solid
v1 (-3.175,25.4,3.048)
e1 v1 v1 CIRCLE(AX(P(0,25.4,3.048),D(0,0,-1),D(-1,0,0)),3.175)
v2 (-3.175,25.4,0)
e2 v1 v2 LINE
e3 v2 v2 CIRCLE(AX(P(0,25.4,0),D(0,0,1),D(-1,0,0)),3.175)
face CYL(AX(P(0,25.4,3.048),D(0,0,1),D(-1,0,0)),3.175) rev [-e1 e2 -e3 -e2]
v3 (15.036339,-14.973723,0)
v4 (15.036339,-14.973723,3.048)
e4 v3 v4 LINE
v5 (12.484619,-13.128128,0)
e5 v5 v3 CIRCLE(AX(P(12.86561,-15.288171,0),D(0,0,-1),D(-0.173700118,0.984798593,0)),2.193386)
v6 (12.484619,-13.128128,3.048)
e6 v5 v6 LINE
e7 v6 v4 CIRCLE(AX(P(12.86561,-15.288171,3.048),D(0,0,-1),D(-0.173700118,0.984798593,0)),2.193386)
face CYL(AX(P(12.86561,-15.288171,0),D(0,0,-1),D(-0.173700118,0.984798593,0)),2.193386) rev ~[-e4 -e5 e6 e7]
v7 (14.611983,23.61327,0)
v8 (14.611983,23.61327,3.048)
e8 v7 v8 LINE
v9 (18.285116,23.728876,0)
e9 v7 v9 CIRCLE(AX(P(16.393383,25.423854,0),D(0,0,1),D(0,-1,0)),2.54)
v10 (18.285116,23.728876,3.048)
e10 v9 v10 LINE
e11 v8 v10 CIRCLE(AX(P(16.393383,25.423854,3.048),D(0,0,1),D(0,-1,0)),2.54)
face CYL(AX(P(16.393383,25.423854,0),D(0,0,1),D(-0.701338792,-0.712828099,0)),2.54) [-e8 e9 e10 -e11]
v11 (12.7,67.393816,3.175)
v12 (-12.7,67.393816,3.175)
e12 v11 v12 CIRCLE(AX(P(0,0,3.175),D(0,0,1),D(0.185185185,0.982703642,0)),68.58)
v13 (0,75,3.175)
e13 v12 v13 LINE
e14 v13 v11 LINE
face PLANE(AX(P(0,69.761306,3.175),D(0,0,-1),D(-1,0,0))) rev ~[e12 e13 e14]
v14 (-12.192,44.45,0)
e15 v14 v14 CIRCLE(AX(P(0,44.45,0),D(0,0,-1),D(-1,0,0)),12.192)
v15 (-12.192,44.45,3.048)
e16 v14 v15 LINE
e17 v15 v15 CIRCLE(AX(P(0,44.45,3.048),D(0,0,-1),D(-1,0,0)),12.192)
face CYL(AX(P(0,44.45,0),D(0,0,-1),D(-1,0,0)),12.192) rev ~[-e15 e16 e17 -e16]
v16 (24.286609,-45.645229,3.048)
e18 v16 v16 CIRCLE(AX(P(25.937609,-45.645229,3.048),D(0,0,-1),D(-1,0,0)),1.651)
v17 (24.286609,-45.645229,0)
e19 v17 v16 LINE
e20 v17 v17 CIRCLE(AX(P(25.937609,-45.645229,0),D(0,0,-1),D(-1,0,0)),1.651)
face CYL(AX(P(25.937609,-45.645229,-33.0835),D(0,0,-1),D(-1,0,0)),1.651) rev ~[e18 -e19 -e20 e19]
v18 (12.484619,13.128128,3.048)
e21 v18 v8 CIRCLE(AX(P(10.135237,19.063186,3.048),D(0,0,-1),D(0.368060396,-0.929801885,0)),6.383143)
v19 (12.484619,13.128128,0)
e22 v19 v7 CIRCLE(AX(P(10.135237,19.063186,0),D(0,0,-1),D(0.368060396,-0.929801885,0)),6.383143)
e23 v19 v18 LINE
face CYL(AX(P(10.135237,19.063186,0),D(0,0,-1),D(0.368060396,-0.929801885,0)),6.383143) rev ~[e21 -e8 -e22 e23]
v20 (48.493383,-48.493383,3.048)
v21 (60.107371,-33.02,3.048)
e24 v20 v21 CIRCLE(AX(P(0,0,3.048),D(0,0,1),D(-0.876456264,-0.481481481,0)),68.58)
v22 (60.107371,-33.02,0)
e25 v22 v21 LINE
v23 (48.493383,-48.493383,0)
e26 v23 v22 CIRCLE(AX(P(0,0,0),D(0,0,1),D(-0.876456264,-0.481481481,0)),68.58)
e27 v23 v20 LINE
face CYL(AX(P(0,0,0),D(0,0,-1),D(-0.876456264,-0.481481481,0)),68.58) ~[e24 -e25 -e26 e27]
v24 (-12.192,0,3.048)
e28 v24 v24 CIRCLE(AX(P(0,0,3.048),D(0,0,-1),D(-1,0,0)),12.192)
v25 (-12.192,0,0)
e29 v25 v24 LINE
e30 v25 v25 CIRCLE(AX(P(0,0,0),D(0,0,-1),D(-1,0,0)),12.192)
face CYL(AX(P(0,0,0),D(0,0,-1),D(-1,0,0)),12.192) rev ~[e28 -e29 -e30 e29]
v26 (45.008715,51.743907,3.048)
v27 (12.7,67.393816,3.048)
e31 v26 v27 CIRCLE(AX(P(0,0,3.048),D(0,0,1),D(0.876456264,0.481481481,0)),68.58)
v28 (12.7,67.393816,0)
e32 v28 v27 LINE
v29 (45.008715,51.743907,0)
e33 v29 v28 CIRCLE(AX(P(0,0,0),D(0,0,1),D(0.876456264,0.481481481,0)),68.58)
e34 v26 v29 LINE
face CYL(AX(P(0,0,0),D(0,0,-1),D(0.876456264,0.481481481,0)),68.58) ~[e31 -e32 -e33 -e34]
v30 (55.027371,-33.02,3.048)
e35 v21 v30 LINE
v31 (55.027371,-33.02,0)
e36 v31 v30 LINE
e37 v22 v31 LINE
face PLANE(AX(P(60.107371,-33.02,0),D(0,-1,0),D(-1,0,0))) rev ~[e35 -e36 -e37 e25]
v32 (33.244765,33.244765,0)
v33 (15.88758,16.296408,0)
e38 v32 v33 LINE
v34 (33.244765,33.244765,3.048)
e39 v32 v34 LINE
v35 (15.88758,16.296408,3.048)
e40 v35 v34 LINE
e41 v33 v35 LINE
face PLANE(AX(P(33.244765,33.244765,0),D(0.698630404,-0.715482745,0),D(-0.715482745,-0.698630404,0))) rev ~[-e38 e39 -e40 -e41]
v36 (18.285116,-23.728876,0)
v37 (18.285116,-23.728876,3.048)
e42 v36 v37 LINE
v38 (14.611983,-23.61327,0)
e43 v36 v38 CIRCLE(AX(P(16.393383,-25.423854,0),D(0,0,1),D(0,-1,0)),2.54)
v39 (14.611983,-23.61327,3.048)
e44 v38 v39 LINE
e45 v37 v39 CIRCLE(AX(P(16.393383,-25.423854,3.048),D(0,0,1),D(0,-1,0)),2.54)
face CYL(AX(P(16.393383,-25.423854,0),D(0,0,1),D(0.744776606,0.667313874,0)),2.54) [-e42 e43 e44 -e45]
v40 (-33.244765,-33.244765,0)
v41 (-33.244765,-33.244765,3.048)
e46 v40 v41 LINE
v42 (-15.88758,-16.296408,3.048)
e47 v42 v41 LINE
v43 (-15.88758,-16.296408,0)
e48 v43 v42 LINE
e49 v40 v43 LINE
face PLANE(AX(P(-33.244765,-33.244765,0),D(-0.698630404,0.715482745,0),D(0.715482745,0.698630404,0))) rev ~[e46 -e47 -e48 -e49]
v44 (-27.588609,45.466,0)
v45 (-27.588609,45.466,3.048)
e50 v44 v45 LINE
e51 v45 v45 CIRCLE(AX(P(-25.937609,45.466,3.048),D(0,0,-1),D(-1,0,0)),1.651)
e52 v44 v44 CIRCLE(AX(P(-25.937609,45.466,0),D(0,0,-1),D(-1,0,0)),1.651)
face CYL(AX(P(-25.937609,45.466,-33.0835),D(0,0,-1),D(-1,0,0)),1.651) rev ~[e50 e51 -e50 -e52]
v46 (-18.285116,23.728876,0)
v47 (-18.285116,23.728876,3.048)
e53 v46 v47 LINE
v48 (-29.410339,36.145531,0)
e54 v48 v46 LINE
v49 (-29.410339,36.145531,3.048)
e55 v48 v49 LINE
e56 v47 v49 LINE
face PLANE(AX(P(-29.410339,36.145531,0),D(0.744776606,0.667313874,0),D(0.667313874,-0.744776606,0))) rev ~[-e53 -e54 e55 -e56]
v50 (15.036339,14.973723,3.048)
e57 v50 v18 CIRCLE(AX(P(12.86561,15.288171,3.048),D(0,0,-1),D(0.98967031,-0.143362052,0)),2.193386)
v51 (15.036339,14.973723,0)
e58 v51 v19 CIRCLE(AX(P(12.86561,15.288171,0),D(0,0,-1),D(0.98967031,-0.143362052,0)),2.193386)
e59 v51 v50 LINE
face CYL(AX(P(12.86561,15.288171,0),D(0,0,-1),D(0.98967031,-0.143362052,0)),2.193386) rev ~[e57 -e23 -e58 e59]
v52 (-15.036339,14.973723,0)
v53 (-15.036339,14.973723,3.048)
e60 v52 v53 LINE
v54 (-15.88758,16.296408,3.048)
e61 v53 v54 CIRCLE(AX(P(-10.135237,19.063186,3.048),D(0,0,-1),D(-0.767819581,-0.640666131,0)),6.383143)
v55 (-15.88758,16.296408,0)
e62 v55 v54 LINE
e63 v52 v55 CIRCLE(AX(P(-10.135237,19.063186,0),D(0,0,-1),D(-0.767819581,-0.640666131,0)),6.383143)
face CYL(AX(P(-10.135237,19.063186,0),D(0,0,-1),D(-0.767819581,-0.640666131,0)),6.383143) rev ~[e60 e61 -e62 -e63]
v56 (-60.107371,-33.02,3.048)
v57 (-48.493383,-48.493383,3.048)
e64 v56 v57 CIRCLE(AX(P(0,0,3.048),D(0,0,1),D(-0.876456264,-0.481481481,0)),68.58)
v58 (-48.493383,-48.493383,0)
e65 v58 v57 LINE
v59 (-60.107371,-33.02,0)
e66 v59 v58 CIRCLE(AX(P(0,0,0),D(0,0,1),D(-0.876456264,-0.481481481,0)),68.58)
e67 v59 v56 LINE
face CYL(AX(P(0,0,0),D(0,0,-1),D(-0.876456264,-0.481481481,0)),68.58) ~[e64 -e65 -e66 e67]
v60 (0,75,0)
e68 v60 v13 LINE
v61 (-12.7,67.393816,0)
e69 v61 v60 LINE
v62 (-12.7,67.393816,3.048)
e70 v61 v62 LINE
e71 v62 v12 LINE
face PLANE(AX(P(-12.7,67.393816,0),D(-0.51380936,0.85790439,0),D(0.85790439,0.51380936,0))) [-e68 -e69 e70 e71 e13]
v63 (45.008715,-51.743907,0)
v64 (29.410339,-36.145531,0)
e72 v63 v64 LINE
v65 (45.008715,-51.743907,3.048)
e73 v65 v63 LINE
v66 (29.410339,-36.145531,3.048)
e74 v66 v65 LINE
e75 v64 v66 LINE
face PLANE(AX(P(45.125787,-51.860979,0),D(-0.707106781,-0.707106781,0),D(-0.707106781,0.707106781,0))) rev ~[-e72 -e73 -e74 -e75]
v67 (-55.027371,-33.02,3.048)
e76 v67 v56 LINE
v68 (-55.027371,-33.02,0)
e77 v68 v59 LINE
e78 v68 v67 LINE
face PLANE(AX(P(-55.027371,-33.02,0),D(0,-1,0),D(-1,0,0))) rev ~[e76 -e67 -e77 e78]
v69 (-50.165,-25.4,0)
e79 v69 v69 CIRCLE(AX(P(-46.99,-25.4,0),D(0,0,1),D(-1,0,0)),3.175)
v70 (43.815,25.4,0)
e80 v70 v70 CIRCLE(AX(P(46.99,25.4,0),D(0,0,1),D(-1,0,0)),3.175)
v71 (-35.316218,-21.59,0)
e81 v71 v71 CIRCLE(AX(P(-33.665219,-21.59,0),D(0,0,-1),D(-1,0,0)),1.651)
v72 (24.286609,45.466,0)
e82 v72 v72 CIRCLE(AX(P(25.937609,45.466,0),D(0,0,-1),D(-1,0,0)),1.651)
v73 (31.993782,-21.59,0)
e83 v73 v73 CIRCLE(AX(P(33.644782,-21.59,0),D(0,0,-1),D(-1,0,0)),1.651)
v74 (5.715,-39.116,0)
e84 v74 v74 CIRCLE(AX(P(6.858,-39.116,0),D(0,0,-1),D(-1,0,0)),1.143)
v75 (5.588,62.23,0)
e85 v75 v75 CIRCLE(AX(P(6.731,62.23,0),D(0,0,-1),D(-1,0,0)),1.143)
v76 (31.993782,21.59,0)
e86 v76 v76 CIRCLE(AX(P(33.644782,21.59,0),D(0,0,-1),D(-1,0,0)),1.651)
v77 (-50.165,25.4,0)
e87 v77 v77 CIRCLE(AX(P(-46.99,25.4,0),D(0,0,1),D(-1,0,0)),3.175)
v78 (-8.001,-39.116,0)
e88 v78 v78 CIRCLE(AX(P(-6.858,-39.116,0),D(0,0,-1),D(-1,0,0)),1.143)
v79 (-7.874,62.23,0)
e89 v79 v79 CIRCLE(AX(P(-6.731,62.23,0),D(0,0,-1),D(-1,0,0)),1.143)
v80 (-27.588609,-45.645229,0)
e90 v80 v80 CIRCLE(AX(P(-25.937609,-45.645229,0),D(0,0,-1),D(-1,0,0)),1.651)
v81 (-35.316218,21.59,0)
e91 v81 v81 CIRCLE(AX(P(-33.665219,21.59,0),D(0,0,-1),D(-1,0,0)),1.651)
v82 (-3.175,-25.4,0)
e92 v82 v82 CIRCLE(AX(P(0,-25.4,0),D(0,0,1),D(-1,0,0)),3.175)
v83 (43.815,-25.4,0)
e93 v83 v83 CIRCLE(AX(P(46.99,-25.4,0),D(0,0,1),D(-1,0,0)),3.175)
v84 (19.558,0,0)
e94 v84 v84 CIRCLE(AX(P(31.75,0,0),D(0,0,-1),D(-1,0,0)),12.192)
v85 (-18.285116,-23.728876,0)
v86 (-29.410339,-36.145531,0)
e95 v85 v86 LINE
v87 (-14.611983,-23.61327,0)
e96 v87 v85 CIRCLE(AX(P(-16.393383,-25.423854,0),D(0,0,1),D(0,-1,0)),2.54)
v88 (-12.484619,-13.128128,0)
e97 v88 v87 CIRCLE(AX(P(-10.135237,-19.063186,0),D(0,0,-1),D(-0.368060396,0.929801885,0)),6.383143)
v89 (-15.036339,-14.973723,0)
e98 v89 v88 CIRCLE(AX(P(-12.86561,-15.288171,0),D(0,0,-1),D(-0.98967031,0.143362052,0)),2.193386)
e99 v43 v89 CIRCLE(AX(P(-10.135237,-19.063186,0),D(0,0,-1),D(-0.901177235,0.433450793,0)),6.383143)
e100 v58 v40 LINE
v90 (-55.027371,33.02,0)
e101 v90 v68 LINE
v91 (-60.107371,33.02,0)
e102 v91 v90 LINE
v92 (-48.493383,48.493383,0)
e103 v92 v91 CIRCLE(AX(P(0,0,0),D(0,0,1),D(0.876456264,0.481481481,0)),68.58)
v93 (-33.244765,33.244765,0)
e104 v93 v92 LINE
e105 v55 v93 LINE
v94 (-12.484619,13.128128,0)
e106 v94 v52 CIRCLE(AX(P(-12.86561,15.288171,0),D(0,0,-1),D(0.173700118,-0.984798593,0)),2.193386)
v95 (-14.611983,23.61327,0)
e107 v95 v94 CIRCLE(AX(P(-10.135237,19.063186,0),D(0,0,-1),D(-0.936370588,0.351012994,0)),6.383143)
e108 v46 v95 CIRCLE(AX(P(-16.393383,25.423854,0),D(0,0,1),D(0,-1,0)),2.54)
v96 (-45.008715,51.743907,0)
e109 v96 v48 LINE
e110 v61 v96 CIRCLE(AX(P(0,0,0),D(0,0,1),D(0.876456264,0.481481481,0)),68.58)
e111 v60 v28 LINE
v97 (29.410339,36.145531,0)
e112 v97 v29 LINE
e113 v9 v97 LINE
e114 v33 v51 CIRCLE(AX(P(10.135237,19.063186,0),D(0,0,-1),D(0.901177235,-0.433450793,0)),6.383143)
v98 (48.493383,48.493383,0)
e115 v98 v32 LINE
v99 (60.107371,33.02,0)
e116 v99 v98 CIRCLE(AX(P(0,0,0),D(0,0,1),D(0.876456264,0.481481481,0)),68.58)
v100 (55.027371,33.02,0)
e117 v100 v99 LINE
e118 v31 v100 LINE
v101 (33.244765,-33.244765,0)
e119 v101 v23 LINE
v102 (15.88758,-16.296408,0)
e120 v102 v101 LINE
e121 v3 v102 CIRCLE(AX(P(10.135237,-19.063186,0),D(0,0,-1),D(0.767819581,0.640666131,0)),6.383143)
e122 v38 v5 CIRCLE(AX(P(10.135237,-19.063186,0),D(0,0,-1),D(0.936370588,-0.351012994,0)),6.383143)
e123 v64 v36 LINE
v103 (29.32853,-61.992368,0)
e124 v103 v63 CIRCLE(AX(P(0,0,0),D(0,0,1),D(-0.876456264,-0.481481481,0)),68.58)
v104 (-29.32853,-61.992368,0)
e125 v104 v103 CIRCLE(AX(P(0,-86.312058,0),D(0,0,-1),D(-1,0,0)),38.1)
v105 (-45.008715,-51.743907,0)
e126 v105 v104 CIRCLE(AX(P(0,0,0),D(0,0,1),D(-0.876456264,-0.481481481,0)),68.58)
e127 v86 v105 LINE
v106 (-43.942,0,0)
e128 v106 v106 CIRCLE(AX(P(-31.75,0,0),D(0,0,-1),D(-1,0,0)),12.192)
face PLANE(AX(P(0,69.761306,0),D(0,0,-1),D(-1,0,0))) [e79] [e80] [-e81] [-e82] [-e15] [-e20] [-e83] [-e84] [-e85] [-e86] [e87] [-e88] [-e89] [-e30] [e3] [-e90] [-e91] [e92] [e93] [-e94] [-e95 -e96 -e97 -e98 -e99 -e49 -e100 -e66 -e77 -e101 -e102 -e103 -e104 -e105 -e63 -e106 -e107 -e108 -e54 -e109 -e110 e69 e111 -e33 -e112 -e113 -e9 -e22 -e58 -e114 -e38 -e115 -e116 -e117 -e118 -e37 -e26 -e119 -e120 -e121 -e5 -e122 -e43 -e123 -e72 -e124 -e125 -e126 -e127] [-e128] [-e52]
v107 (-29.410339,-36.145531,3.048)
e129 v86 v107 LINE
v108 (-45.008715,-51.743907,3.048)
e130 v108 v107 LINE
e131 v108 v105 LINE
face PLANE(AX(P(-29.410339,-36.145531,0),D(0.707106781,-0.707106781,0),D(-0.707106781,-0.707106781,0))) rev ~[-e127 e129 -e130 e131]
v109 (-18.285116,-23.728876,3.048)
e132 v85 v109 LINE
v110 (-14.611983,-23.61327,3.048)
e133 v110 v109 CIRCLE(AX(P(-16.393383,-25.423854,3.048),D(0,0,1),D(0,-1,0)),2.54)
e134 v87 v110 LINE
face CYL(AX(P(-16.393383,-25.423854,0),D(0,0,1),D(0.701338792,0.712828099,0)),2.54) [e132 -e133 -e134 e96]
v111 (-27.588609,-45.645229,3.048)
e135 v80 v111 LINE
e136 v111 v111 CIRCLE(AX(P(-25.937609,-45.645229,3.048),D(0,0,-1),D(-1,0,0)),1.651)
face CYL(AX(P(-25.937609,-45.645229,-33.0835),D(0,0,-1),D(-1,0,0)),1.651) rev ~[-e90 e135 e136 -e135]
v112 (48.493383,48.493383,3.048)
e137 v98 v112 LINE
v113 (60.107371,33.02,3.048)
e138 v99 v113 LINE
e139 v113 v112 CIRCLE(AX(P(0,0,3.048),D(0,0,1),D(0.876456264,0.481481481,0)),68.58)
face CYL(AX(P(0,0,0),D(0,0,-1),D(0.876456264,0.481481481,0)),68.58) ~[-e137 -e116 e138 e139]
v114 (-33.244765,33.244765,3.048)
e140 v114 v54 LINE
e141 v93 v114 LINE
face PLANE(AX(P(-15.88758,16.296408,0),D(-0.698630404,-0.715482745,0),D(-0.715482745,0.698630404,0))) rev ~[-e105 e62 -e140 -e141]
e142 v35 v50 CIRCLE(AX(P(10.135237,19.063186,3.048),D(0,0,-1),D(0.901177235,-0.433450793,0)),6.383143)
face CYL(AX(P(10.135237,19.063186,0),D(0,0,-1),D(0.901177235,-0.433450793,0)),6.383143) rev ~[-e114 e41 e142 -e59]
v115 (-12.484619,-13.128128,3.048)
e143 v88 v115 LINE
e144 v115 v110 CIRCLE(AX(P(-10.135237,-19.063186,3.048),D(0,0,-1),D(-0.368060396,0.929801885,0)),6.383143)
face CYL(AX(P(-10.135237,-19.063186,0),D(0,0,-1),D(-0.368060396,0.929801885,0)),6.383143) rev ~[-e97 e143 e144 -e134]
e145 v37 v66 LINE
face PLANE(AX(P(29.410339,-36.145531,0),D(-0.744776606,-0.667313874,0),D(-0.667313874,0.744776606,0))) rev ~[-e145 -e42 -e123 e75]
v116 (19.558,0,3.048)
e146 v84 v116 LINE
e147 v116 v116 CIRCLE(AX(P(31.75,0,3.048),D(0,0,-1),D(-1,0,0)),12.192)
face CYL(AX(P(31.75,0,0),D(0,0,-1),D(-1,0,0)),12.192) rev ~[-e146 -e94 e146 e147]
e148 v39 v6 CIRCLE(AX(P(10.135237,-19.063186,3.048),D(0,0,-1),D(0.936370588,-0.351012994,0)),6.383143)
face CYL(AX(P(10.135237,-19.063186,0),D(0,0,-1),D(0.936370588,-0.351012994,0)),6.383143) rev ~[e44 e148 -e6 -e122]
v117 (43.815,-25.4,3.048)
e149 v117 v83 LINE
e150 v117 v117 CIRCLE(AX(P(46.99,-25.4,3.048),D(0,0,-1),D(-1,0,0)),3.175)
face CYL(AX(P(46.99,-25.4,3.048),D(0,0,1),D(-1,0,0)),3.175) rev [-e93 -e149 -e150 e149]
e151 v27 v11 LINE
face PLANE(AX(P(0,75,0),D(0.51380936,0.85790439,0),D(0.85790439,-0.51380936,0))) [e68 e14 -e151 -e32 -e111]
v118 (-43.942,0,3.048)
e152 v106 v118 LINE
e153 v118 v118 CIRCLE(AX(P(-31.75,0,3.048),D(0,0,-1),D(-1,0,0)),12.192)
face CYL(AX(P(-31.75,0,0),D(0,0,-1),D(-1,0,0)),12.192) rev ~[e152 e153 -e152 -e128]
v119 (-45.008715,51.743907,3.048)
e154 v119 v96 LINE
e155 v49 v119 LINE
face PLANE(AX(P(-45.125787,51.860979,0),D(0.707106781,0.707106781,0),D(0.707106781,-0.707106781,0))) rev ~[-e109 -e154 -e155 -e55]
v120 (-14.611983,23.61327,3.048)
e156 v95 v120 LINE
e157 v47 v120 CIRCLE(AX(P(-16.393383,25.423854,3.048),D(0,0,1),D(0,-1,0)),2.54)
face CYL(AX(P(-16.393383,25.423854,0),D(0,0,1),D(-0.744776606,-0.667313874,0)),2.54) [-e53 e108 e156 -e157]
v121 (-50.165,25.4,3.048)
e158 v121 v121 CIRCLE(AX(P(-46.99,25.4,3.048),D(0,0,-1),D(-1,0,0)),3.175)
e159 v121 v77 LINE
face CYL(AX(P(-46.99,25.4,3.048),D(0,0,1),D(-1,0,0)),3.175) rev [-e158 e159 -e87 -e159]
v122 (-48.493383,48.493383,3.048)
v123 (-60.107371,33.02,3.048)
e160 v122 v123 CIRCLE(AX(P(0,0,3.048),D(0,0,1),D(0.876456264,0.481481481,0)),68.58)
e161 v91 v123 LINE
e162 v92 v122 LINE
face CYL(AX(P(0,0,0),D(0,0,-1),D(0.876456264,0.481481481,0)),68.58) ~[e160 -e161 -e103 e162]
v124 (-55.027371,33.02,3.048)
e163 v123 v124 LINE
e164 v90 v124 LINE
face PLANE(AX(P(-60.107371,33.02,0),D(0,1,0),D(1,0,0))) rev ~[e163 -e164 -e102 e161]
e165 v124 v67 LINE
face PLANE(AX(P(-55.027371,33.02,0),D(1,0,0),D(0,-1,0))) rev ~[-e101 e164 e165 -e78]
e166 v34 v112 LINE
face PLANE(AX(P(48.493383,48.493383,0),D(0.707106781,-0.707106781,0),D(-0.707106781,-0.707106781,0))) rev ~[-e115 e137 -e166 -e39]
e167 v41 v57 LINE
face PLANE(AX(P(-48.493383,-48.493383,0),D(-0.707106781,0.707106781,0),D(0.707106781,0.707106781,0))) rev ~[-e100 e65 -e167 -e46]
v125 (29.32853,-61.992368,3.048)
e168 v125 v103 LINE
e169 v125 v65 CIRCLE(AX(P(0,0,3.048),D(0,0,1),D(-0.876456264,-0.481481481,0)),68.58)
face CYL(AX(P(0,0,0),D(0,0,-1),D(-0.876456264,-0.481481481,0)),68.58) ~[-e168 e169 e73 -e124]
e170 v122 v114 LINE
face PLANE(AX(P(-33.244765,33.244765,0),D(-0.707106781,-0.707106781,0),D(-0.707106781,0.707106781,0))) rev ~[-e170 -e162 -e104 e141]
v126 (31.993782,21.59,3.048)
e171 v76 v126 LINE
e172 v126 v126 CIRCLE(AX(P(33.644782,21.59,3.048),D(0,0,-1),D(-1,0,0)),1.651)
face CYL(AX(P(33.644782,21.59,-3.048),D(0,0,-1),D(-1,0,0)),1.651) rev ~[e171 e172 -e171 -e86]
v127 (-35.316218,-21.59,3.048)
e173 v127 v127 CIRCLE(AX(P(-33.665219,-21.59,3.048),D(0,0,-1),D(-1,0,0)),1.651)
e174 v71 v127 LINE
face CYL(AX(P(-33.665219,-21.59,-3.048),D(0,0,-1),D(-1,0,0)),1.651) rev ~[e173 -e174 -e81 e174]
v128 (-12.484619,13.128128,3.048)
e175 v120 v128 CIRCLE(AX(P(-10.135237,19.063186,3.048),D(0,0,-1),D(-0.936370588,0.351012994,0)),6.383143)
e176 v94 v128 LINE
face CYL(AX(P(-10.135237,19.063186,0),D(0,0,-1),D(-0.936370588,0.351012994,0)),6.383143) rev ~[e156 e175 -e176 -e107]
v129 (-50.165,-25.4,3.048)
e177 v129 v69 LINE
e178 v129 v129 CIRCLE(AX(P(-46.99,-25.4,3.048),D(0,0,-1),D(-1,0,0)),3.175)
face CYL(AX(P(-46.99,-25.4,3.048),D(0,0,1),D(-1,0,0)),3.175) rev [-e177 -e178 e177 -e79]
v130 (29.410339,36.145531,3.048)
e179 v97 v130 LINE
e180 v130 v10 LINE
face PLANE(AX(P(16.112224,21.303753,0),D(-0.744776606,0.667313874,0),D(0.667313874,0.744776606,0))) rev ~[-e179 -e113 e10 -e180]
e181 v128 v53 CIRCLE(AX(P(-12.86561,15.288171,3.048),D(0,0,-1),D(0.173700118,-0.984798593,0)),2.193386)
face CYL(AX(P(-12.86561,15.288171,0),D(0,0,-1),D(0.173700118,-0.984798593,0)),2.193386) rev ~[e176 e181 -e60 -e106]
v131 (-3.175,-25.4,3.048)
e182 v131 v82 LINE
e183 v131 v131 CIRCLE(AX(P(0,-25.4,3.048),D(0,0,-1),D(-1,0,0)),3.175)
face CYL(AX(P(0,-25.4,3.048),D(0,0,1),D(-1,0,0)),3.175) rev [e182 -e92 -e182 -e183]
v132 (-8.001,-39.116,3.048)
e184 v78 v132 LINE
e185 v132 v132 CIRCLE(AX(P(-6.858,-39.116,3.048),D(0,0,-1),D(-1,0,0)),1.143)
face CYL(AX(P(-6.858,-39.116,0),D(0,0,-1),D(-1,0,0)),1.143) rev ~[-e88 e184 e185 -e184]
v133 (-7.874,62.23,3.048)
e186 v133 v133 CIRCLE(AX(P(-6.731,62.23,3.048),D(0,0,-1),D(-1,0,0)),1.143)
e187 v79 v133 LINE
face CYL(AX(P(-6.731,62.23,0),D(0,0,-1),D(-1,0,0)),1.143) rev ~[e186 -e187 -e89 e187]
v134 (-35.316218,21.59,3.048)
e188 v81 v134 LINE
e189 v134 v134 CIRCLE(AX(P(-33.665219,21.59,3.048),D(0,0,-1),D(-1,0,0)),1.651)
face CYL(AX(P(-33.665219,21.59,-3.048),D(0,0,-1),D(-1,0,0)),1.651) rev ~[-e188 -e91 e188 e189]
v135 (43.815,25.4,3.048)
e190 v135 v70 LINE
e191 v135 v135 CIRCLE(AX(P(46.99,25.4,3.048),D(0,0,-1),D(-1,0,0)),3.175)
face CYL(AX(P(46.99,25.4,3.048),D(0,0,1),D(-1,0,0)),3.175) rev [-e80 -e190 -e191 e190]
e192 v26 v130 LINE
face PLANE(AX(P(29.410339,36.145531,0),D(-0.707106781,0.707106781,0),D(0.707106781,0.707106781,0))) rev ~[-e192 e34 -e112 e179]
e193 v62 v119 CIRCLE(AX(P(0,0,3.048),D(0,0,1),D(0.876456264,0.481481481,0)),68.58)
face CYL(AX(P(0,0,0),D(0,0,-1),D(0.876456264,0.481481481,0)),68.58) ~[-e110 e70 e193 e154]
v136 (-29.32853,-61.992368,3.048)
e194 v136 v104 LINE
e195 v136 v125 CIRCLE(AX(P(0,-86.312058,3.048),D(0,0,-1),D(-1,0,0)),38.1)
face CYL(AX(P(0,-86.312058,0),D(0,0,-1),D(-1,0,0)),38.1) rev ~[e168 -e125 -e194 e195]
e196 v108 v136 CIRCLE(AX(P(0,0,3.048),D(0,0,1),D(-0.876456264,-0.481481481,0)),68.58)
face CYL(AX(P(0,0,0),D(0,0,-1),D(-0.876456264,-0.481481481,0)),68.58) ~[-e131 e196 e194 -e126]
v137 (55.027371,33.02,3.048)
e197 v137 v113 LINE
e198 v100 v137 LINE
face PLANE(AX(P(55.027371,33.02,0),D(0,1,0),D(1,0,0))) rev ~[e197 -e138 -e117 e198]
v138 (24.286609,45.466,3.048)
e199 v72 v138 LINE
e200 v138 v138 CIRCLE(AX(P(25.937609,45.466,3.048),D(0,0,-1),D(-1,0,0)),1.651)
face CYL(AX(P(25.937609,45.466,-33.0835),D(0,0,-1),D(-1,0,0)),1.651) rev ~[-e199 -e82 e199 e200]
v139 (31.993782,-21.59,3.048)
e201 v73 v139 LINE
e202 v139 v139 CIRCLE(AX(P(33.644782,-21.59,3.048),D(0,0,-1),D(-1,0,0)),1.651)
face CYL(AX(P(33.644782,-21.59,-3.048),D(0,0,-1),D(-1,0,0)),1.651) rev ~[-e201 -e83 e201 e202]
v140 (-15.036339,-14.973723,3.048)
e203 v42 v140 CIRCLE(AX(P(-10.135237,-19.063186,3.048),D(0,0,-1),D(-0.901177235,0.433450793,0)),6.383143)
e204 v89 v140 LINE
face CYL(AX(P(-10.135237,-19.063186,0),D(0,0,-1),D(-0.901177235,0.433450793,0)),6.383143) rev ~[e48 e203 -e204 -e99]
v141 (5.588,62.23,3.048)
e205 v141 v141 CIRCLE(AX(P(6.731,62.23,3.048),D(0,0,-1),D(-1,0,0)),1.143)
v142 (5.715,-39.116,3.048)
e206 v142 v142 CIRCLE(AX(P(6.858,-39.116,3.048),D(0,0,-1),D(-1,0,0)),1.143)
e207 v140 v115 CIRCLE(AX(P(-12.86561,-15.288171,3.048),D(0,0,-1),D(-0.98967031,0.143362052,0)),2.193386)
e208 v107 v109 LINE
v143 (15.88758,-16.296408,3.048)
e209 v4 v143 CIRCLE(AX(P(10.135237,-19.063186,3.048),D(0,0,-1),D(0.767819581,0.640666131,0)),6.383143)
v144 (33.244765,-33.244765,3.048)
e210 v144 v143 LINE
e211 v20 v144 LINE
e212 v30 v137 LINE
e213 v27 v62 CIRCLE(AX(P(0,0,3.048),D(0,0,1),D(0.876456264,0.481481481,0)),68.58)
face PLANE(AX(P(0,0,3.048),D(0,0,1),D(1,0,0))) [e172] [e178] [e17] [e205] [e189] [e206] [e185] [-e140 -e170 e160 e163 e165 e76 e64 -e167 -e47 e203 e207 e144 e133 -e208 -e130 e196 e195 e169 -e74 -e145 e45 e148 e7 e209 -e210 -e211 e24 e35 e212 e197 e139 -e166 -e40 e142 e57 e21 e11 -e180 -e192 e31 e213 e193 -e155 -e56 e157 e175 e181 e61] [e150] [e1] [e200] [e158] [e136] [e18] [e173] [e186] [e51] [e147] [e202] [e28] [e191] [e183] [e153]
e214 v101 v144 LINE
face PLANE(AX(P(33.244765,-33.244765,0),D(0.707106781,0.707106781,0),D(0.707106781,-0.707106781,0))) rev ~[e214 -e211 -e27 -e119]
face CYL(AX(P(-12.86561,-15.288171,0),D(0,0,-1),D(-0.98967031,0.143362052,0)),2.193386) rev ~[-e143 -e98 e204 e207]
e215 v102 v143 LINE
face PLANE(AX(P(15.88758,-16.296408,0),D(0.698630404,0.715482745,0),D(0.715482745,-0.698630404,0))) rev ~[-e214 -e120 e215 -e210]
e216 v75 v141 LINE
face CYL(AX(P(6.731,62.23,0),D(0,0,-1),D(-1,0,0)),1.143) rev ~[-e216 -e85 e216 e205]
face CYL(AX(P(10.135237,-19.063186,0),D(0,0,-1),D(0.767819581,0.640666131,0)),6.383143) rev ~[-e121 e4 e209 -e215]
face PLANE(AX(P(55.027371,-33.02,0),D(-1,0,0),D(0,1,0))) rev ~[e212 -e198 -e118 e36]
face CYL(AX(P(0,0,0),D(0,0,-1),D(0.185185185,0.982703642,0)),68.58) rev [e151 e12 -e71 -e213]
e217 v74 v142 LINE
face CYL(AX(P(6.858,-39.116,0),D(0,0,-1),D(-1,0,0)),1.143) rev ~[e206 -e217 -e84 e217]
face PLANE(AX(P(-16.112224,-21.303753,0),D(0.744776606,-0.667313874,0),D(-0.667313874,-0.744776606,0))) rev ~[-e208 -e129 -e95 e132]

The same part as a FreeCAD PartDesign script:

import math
import FreeCAD as App
import Part
import Sketcher
from FreeCAD import Vector
Q = App.Units.Quantity


def edges_at(feature, points):
    """Names of the edges that pass closest to the given points."""
    edges = feature.Shape.Edges
    near = lambda p: min(range(len(edges)), key=lambda i: edges[i].distToShape(Part.Vertex(*p))[0])
    return sorted({f"Edge{near(p) + 1}" for p in points})

doc = App.newDocument("Part")
body = doc.addObject("PartDesign::Body", "Body")

# Sketch on XY plane
sketch1 = body.newObject("Sketcher::SketchObject", "Sketch")
sketch1.AttachmentSupport = (doc.getObject("XY_Plane"), [""])
sketch1.MapMode = "FlatFace"
sketch1.addGeometry(Part.LineSegment(Vector(-60.107371, 33.02, 0), Vector(-55.027371, 33.02, 0)), False)
sketch1.addGeometry(Part.LineSegment(Vector(-55.027371, 33.02, 0), Vector(-55.027371, -33.02, 0)), False)
sketch1.addGeometry(Part.LineSegment(Vector(-55.027371, -33.02, 0), Vector(-60.107371, -33.02, 0)), False)
sketch1.addGeometry(Part.ArcOfCircle(Part.Circle(Vector(0, 0, 0), Vector(0, 0, 1), 68.58), math.radians(-151.217795), math.radians(-28.782205)), False)
sketch1.addGeometry(Part.LineSegment(Vector(60.107371, -33.02, 0), Vector(55.027371, -33.02, 0)), False)
sketch1.addGeometry(Part.LineSegment(Vector(55.027371, -33.02, 0), Vector(55.027371, 33.02, 0)), False)
sketch1.addGeometry(Part.LineSegment(Vector(55.027371, 33.02, 0), Vector(60.107371, 33.02, 0)), False)
sketch1.addGeometry(Part.ArcOfCircle(Part.Circle(Vector(0, 0, 0), Vector(0, 0, 1), 68.58), math.radians(28.782205), math.radians(151.217795)), False)
sketch1.addConstraint(Sketcher.Constraint("Coincident", 0, 2, 1, 1))
sketch1.addConstraint(Sketcher.Constraint("Coincident", 1, 2, 2, 1))
sketch1.addConstraint(Sketcher.Constraint("Coincident", 2, 2, 3, 1))
sketch1.addConstraint(Sketcher.Constraint("Coincident", 3, 2, 4, 1))
sketch1.addConstraint(Sketcher.Constraint("Coincident", 4, 2, 5, 1))
sketch1.addConstraint(Sketcher.Constraint("Coincident", 5, 2, 6, 1))
sketch1.addConstraint(Sketcher.Constraint("Coincident", 6, 2, 7, 1))
sketch1.addConstraint(Sketcher.Constraint("Coincident", 7, 2, 0, 1))
sketch1.addConstraint(Sketcher.Constraint("Horizontal", 0))
sketch1.addConstraint(Sketcher.Constraint("Vertical", 1))
sketch1.addConstraint(Sketcher.Constraint("Horizontal", 2))
sketch1.addConstraint(Sketcher.Constraint("Horizontal", 4))
sketch1.addConstraint(Sketcher.Constraint("Vertical", 5))
sketch1.addConstraint(Sketcher.Constraint("Horizontal", 6))
sketch1.addConstraint(Sketcher.Constraint("Coincident", 3, 3, -1, 1))
sketch1.addConstraint(Sketcher.Constraint("Coincident", 7, 3, -1, 1))
sketch1.addConstraint(Sketcher.Constraint("Equal", 3, 7))
sketch1.addConstraint(Sketcher.Constraint("Symmetric", 0, 2, 4, 2, -1, 1))
sketch1.addConstraint(Sketcher.Constraint("Horizontal", 2, 2, 3, 2))
sketch1.addConstraint(Sketcher.Constraint("Horizontal", 0, 2, 5, 2))
sketch1.addConstraint(Sketcher.Constraint("Radius", 3, Q("2.7 in")))
sketch1.addConstraint(Sketcher.Constraint("DistanceX", 0, 1, 0, 2, Q("0.2 in")))
sketch1.addConstraint(Sketcher.Constraint("DistanceY", 1, 2, 1, 1, Q("2.6 in")))
pad1 = body.newObject("PartDesign::Pad", "Pad")
pad1.Profile = sketch1
pad1.Length = Q("0.12 in")

# Sketch on XY plane
sketch2 = body.newObject("Sketcher::SketchObject", "Sketch001")
sketch2.AttachmentSupport = (doc.getObject("XY_Plane"), [""])
sketch2.MapMode = "FlatFace"
sketch2.addGeometry(Part.Circle(Vector(0, -86.312058, 0), Vector(0, 0, 1), 38.1), False)
sketch2.addConstraint(Sketcher.Constraint("PointOnObject", 0, 3, -2))
sketch2.addConstraint(Sketcher.Constraint("Diameter", 0, Q("3 in")))
sketch2.addConstraint(Sketcher.Constraint("DistanceY", 0, 3, -1, 1, 86.312058))
pocket1 = body.newObject("PartDesign::Pocket", "Pocket")
pocket1.Profile = sketch2
pocket1.Type = "ThroughAll"
pocket1.Reversed = True

# Sketch on XY plane
sketch3 = body.newObject("Sketcher::SketchObject", "Sketch002")
sketch3.AttachmentSupport = (doc.getObject("XY_Plane"), [""])
sketch3.MapMode = "FlatFace"
sketch3.addGeometry(Part.LineSegment(Vector(-12.7, 67.393816, 0), Vector(0, 75, 0)), False)
sketch3.addGeometry(Part.LineSegment(Vector(0, 75, 0), Vector(12.7, 67.393816, 0)), False)
sketch3.addGeometry(Part.ArcOfCircle(Part.Circle(Vector(0, 0, 0), Vector(0, 0, 1), 68.58), math.radians(79.328071), math.radians(100.671929)), False)
sketch3.addConstraint(Sketcher.Constraint("Coincident", 0, 2, 1, 1))
sketch3.addConstraint(Sketcher.Constraint("Coincident", 1, 2, 2, 1))
sketch3.addConstraint(Sketcher.Constraint("Coincident", 2, 2, 0, 1))
sketch3.addConstraint(Sketcher.Constraint("Coincident", 2, 3, -1, 1))
sketch3.addConstraint(Sketcher.Constraint("PointOnObject", 0, 2, -2))
sketch3.addConstraint(Sketcher.Constraint("Horizontal", 1, 2, 2, 2))
sketch3.addConstraint(Sketcher.Constraint("Radius", 2, Q("2.7 in")))
sketch3.addConstraint(Sketcher.Constraint("DistanceX", 2, 2, 1, 2, Q("1 in")))
sketch3.addConstraint(Sketcher.Constraint("DistanceY", -1, 1, 0, 2, 75.0))
pad2 = body.newObject("PartDesign::Pad", "Pad001")
pad2.Profile = sketch3
pad2.Length = Q("0.125 in")

# Sketch on XY plane
sketch4 = body.newObject("Sketcher::SketchObject", "Sketch003")
sketch4.AttachmentSupport = (doc.getObject("XY_Plane"), [""])
sketch4.MapMode = "FlatFace"
sketch4.addGeometry(Part.Circle(Vector(-6.731, 62.23, 0), Vector(0, 0, 1), 1.143), False)
sketch4.addGeometry(Part.Circle(Vector(6.731, 62.23, 0), Vector(0, 0, 1), 1.143), False)
sketch4.addConstraint(Sketcher.Constraint("Equal", 0, 1))
sketch4.addConstraint(Sketcher.Constraint("Symmetric", 0, 3, 1, 3, -2))
sketch4.addConstraint(Sketcher.Constraint("Diameter", 0, Q("0.09 in")))
sketch4.addConstraint(Sketcher.Constraint("DistanceY", -1, 1, 0, 3, Q("2.45 in")))
sketch4.addConstraint(Sketcher.Constraint("DistanceX", 0, 3, 1, 3, Q("0.53 in")))
pocket2 = body.newObject("PartDesign::Pocket", "Pocket001")
pocket2.Profile = sketch4
pocket2.Type = "ThroughAll"
pocket2.Reversed = True

# Sketch on XY plane
sketch5 = body.newObject("Sketcher::SketchObject", "Sketch004")
sketch5.AttachmentSupport = (doc.getObject("XY_Plane"), [""])
sketch5.MapMode = "FlatFace"
sketch5.AttachmentOffset = App.Placement(Vector(0, 0, -0.12 * 25.4), App.Rotation())
sketch5.addGeometry(Part.Circle(Vector(-33.665219, 21.59, 0), Vector(0, 0, 1), 1.651), False)
sketch5.addGeometry(Part.Circle(Vector(-33.665219, -21.59, 0), Vector(0, 0, 1), 1.651), False)
sketch5.addGeometry(Part.Circle(Vector(33.644782, -21.59, 0), Vector(0, 0, 1), 1.651), False)
sketch5.addGeometry(Part.Circle(Vector(33.644782, 21.59, 0), Vector(0, 0, 1), 1.651), False)
sketch5.addConstraint(Sketcher.Constraint("Equal", 0, 1))
sketch5.addConstraint(Sketcher.Constraint("Equal", 1, 2))
sketch5.addConstraint(Sketcher.Constraint("Equal", 2, 3))
sketch5.addConstraint(Sketcher.Constraint("Symmetric", 0, 3, 1, 3, -1))
sketch5.addConstraint(Sketcher.Constraint("Symmetric", 2, 3, 3, 3, -1))
sketch5.addConstraint(Sketcher.Constraint("Horizontal", 1, 3, 2, 3))
sketch5.addConstraint(Sketcher.Constraint("Diameter", 0, Q("0.13 in")))
sketch5.addConstraint(Sketcher.Constraint("DistanceY", 1, 3, 0, 3, Q("1.7 in")))
sketch5.addConstraint(Sketcher.Constraint("DistanceX", 1, 3, 2, 3, Q("2.65 in")))
sketch5.addConstraint(Sketcher.Constraint("DistanceX", 0, 3, -1, 1, 33.665219))
pocket3 = body.newObject("PartDesign::Pocket", "Pocket002")
pocket3.Profile = sketch5
pocket3.Length = Q("2.98 in")
pocket3.Reversed = True

# Sketch on XY plane
sketch6 = body.newObject("Sketcher::SketchObject", "Sketch005")
sketch6.AttachmentSupport = (doc.getObject("XY_Plane"), [""])
sketch6.MapMode = "FlatFace"
sketch6.AttachmentOffset = App.Placement(Vector(0, 0, -1.3025 * 25.4), App.Rotation())
sketch6.addGeometry(Part.Circle(Vector(25.937609, -45.645229, 0), Vector(0, 0, 1), 1.651), False)
sketch6.addGeometry(Part.Circle(Vector(-25.937609, -45.645229, 0), Vector(0, 0, 1), 1.651), False)
sketch6.addGeometry(Part.Circle(Vector(25.937609, 45.466, 0), Vector(0, 0, 1), 1.651), False)
sketch6.addGeometry(Part.Circle(Vector(-25.937609, 45.466, 0), Vector(0, 0, 1), 1.651), False)
sketch6.addConstraint(Sketcher.Constraint("Equal", 0, 1))
sketch6.addConstraint(Sketcher.Constraint("Equal", 1, 2))
sketch6.addConstraint(Sketcher.Constraint("Equal", 2, 3))
sketch6.addConstraint(Sketcher.Constraint("Symmetric", 0, 3, 1, 3, -2))
sketch6.addConstraint(Sketcher.Constraint("Symmetric", 2, 3, 3, 3, -2))
sketch6.addConstraint(Sketcher.Constraint("Vertical", 0, 3, 2, 3))
sketch6.addConstraint(Sketcher.Constraint("Diameter", 0, Q("0.13 in")))
sketch6.addConstraint(Sketcher.Constraint("DistanceY", -1, 1, 2, 3, Q("1.79 in")))
sketch6.addConstraint(Sketcher.Constraint("DistanceX", -1, 1, 0, 3, 25.937609))
sketch6.addConstraint(Sketcher.Constraint("DistanceY", 0, 3, -1, 1, 45.645229))
pocket4 = body.newObject("PartDesign::Pocket", "Pocket003")
pocket4.Profile = sketch6
pocket4.Length = Q("3.85 in")
pocket4.Reversed = True

# Sketch on XY plane
sketch7 = body.newObject("Sketcher::SketchObject", "Sketch006")
sketch7.AttachmentSupport = (doc.getObject("XY_Plane"), [""])
sketch7.MapMode = "FlatFace"
sketch7.addGeometry(Part.Circle(Vector(-31.75, 0, 0), Vector(0, 0, 1), 12.192), False)
sketch7.addGeometry(Part.Circle(Vector(31.75, 0, 0), Vector(0, 0, 1), 12.192), False)
sketch7.addConstraint(Sketcher.Constraint("Equal", 0, 1))
sketch7.addConstraint(Sketcher.Constraint("Symmetric", 0, 3, 1, 3, -1, 1))
sketch7.addConstraint(Sketcher.Constraint("PointOnObject", 0, 3, -1))
sketch7.addConstraint(Sketcher.Constraint("Diameter", 0, Q("0.96 in")))
sketch7.addConstraint(Sketcher.Constraint("DistanceX", 0, 3, 1, 3, Q("2.5 in")))
pocket5 = body.newObject("PartDesign::Pocket", "Pocket004")
pocket5.Profile = sketch7
pocket5.Length = Q("1.4 in")
pocket5.Reversed = True

# Sketch on XY plane
sketch8 = body.newObject("Sketcher::SketchObject", "Sketch007")
sketch8.AttachmentSupport = (doc.getObject("XY_Plane"), [""])
sketch8.MapMode = "FlatFace"
sketch8.AttachmentOffset = App.Placement(Vector(0, 0, 0.12 * 25.4), App.Rotation())
sketch8.addGeometry(Part.Circle(Vector(46.99, 25.4, 0), Vector(0, 0, 1), 3.175), False)
sketch8.addGeometry(Part.Circle(Vector(-46.99, 25.4, 0), Vector(0, 0, 1), 3.175), False)
sketch8.addGeometry(Part.Circle(Vector(0, 25.4, 0), Vector(0, 0, 1), 3.175), False)
sketch8.addGeometry(Part.Circle(Vector(-46.99, -25.4, 0), Vector(0, 0, 1), 3.175), False)
sketch8.addGeometry(Part.Circle(Vector(0, -25.4, 0), Vector(0, 0, 1), 3.175), False)
sketch8.addGeometry(Part.Circle(Vector(46.99, -25.4, 0), Vector(0, 0, 1), 3.175), False)
sketch8.addConstraint(Sketcher.Constraint("Equal", 0, 1))
sketch8.addConstraint(Sketcher.Constraint("Equal", 1, 2))
sketch8.addConstraint(Sketcher.Constraint("Equal", 2, 3))
sketch8.addConstraint(Sketcher.Constraint("Equal", 3, 4))
sketch8.addConstraint(Sketcher.Constraint("Equal", 4, 5))
sketch8.addConstraint(Sketcher.Constraint("Symmetric", 0, 3, 3, 3, -1, 1))
sketch8.addConstraint(Sketcher.Constraint("Symmetric", 2, 3, 4, 3, -1, 1))
sketch8.addConstraint(Sketcher.Constraint("Symmetric", 1, 3, 5, 3, -1, 1))
sketch8.addConstraint(Sketcher.Constraint("Symmetric", 0, 3, 1, 3, -2))
sketch8.addConstraint(Sketcher.Constraint("PointOnObject", 2, 3, -2))
sketch8.addConstraint(Sketcher.Constraint("Horizontal", 1, 3, 2, 3))
sketch8.addConstraint(Sketcher.Constraint("Diameter", 0, Q("0.25 in")))
sketch8.addConstraint(Sketcher.Constraint("DistanceY", -1, 1, 0, 3, Q("1 in")))
sketch8.addConstraint(Sketcher.Constraint("DistanceX", 1, 3, 0, 3, Q("3.7 in")))
pocket6 = body.newObject("PartDesign::Pocket", "Pocket005")
pocket6.Profile = sketch8
pocket6.Type = "ThroughAll"
pocket6.Midplane = True

# Sketch on XY plane
sketch9 = body.newObject("Sketcher::SketchObject", "Sketch008")
sketch9.AttachmentSupport = (doc.getObject("XY_Plane"), [""])
sketch9.MapMode = "FlatFace"
sketch9.addGeometry(Part.LineSegment(Vector(-45.125787, -51.860979, 0), Vector(-48.493383, -48.493383, 0)), False)
sketch9.addGeometry(Part.LineSegment(Vector(-48.493383, -48.493383, 0), Vector(-33.244765, -33.244765, 0)), False)
sketch9.addGeometry(Part.LineSegment(Vector(-33.244765, -33.244765, 0), Vector(-15.88758, -16.296408, 0)), False)
sketch9.addGeometry(Part.ArcOfCircle(Part.Circle(Vector(-10.135237, -19.063186, 0), Vector(0, 0, 1), 6.383143), math.radians(140.158491), math.radians(154.313244)), False)
sketch9.addGeometry(Part.ArcOfCircle(Part.Circle(Vector(-12.86561, -15.288171, 0), Vector(0, 0, 1), 2.193386), math.radians(79.996978), math.radians(171.757559)), False)
sketch9.addGeometry(Part.ArcOfCircle(Part.Circle(Vector(-10.135237, -19.063186, 0), Vector(0, 0, 1), 6.383143), math.radians(-159.450713), math.radians(111.596047)), False)
sketch9.addGeometry(Part.LineSegment(Vector(-16.112224, -21.303753, 0), Vector(-29.410339, -36.145531, 0)), False)
sketch9.addGeometry(Part.LineSegment(Vector(-29.410339, -36.145531, 0), Vector(-45.125787, -51.860979, 0)), False)
sketch9.addGeometry(Part.ArcOfCircle(Part.Circle(Vector(-10.135237, 19.063186, 0), Vector(0, 0, 1), 6.383143), math.radians(-154.313244), math.radians(-140.158491)), False)
sketch9.addGeometry(Part.LineSegment(Vector(-15.88758, 16.296408, 0), Vector(-33.244765, 33.244765, 0)), False)
sketch9.addGeometry(Part.LineSegment(Vector(-33.244765, 33.244765, 0), Vector(-48.493383, 48.493383, 0)), False)
sketch9.addGeometry(Part.LineSegment(Vector(-48.493383, 48.493383, 0), Vector(-45.125787, 51.860979, 0)), False)
sketch9.addGeometry(Part.LineSegment(Vector(-45.125787, 51.860979, 0), Vector(-29.410339, 36.145531, 0)), False)
sketch9.addGeometry(Part.LineSegment(Vector(-29.410339, 36.145531, 0), Vector(-16.112224, 21.303753, 0)), False)
sketch9.addGeometry(Part.ArcOfCircle(Part.Circle(Vector(-10.135237, 19.063186, 0), Vector(0, 0, 1), 6.383143), math.radians(-111.596047), math.radians(159.450713)), False)
sketch9.addGeometry(Part.ArcOfCircle(Part.Circle(Vector(-12.86561, 15.288171, 0), Vector(0, 0, 1), 2.193386), math.radians(-171.757559), math.radians(-79.996978)), False)
sketch9.addGeometry(Part.ArcOfCircle(Part.Circle(Vector(10.135237, 19.063186, 0), Vector(0, 0, 1), 6.383143), math.radians(20.549287), math.radians(291.596047)), False)
sketch9.addGeometry(Part.LineSegment(Vector(16.112224, 21.303753, 0), Vector(29.410339, 36.145531, 0)), False)
sketch9.addGeometry(Part.LineSegment(Vector(29.410339, 36.145531, 0), Vector(45.125787, 51.860979, 0)), False)
sketch9.addGeometry(Part.LineSegment(Vector(45.125787, 51.860979, 0), Vector(48.493383, 48.493383, 0)), False)
sketch9.addGeometry(Part.LineSegment(Vector(48.493383, 48.493383, 0), Vector(33.244765, 33.244765, 0)), False)
sketch9.addGeometry(Part.LineSegment(Vector(33.244765, 33.244765, 0), Vector(15.88758, 16.296408, 0)), False)
sketch9.addGeometry(Part.ArcOfCircle(Part.Circle(Vector(10.135237, 19.063186, 0), Vector(0, 0, 1), 6.383143), math.radians(-39.841509), math.radians(-25.686756)), False)
sketch9.addGeometry(Part.ArcOfCircle(Part.Circle(Vector(12.86561, 15.288171, 0), Vector(0, 0, 1), 2.193386), math.radians(-100.003022), math.radians(-8.242441)), False)
sketch9.addGeometry(Part.LineSegment(Vector(45.125787, -51.860979, 0), Vector(29.410339, -36.145531, 0)), False)
sketch9.addGeometry(Part.LineSegment(Vector(29.410339, -36.145531, 0), Vector(16.112224, -21.303753, 0)), False)
sketch9.addGeometry(Part.ArcOfCircle(Part.Circle(Vector(10.135237, -19.063186, 0), Vector(0, 0, 1), 6.383143), math.radians(68.403953), math.radians(339.450713)), False)
sketch9.addGeometry(Part.ArcOfCircle(Part.Circle(Vector(12.86561, -15.288171, 0), Vector(0, 0, 1), 2.193386), math.radians(8.242441), math.radians(100.003022)), False)
sketch9.addGeometry(Part.ArcOfCircle(Part.Circle(Vector(10.135237, -19.063186, 0), Vector(0, 0, 1), 6.383143), math.radians(25.686756), math.radians(39.841509)), False)
sketch9.addGeometry(Part.LineSegment(Vector(15.88758, -16.296408, 0), Vector(33.244765, -33.244765, 0)), False)
sketch9.addGeometry(Part.LineSegment(Vector(33.244765, -33.244765, 0), Vector(48.493383, -48.493383, 0)), False)
sketch9.addGeometry(Part.LineSegment(Vector(48.493383, -48.493383, 0), Vector(45.125787, -51.860979, 0)), False)
sketch9.addGeometry(Part.Circle(Vector(0, 0, 0), Vector(0, 0, 1), 12.192), False)
sketch9.addGeometry(Part.Circle(Vector(0, 44.45, 0), Vector(0, 0, 1), 12.192), False)
sketch9.addConstraint(Sketcher.Constraint("Coincident", 0, 2, 1, 1))
sketch9.addConstraint(Sketcher.Constraint("Coincident", 1, 2, 2, 1))
sketch9.addConstraint(Sketcher.Constraint("Coincident", 2, 2, 3, 2))
sketch9.addConstraint(Sketcher.Constraint("Coincident", 3, 1, 4, 2))
sketch9.addConstraint(Sketcher.Constraint("Coincident", 4, 1, 5, 2))
sketch9.addConstraint(Sketcher.Constraint("Coincident", 5, 1, 6, 1))
sketch9.addConstraint(Sketcher.Constraint("Coincident", 6, 2, 7, 1))
sketch9.addConstraint(Sketcher.Constraint("Coincident", 7, 2, 0, 1))
sketch9.addConstraint(Sketcher.Constraint("Coincident", 8, 1, 9, 1))
sketch9.addConstraint(Sketcher.Constraint("Coincident", 9, 2, 10, 1))
sketch9.addConstraint(Sketcher.Constraint("Coincident", 10, 2, 11, 1))
sketch9.addConstraint(Sketcher.Constraint("Coincident", 11, 2, 12, 1))
sketch9.addConstraint(Sketcher.Constraint("Coincident", 12, 2, 13, 1))
sketch9.addConstraint(Sketcher.Constraint("Coincident", 13, 2, 14, 2))
sketch9.addConstraint(Sketcher.Constraint("Coincident", 14, 1, 15, 2))
sketch9.addConstraint(Sketcher.Constraint("Coincident", 15, 1, 8, 2))
sketch9.addConstraint(Sketcher.Constraint("Coincident", 16, 1, 17, 1))
sketch9.addConstraint(Sketcher.Constraint("Coincident", 17, 2, 18, 1))
sketch9.addConstraint(Sketcher.Constraint("Coincident", 18, 2, 19, 1))
sketch9.addConstraint(Sketcher.Constraint("Coincident", 19, 2, 20, 1))
sketch9.addConstraint(Sketcher.Constraint("Coincident", 20, 2, 21, 1))
sketch9.addConstraint(Sketcher.Constraint("Coincident", 21, 2, 22, 2))
sketch9.addConstraint(Sketcher.Constraint("Coincident", 22, 1, 23, 2))
sketch9.addConstraint(Sketcher.Constraint("Coincident", 23, 1, 16, 2))
sketch9.addConstraint(Sketcher.Constraint("Coincident", 24, 2, 25, 1))
sketch9.addConstraint(Sketcher.Constraint("Coincident", 25, 2, 26, 2))
sketch9.addConstraint(Sketcher.Constraint("Coincident", 26, 1, 27, 2))
sketch9.addConstraint(Sketcher.Constraint("Coincident", 27, 1, 28, 2))
sketch9.addConstraint(Sketcher.Constraint("Coincident", 28, 1, 29, 1))
sketch9.addConstraint(Sketcher.Constraint("Coincident", 29, 2, 30, 1))
sketch9.addConstraint(Sketcher.Constraint("Coincident", 30, 2, 31, 1))
sketch9.addConstraint(Sketcher.Constraint("Coincident", 31, 2, 24, 1))
sketch9.addConstraint(Sketcher.Constraint("Coincident", 32, 3, -1, 1))
sketch9.addConstraint(Sketcher.Constraint("Coincident", 5, 3, 3, 3))
sketch9.addConstraint(Sketcher.Constraint("Coincident", 14, 3, 8, 3))
sketch9.addConstraint(Sketcher.Constraint("Coincident", 22, 3, 16, 3))
sketch9.addConstraint(Sketcher.Constraint("Coincident", 28, 3, 26, 3))
sketch9.addConstraint(Sketcher.Constraint("Equal", 3, 5))
sketch9.addConstraint(Sketcher.Constraint("Equal", 5, 8))
sketch9.addConstraint(Sketcher.Constraint("Equal", 8, 14))
sketch9.addConstraint(Sketcher.Constraint("Equal", 4, 15))
sketch9.addConstraint(Sketcher.Constraint("Equal", 14, 16))
sketch9.addConstraint(Sketcher.Constraint("Equal", 16, 22))
sketch9.addConstraint(Sketcher.Constraint("Equal", 15, 23))
sketch9.addConstraint(Sketcher.Constraint("Equal", 22, 26))
sketch9.addConstraint(Sketcher.Constraint("Equal", 23, 27))
sketch9.addConstraint(Sketcher.Constraint("Equal", 26, 28))
sketch9.addConstraint(Sketcher.Constraint("Equal", 32, 33))
sketch9.addConstraint(Sketcher.Constraint("Symmetric", 3, 3, 16, 3, -1, 1))
sketch9.addConstraint(Sketcher.Constraint("Symmetric", 4, 3, 23, 3, -1, 1))
sketch9.addConstraint(Sketcher.Constraint("Symmetric", 8, 3, 26, 3, -1, 1))
sketch9.addConstraint(Sketcher.Constraint("Symmetric", 15, 3, 27, 3, -1, 1))
sketch9.addConstraint(Sketcher.Constraint("Symmetric", 6, 2, 17, 2, -1, 1))
sketch9.addConstraint(Sketcher.Constraint("Symmetric", 7, 2, 18, 2, -1, 1))
sketch9.addConstraint(Sketcher.Constraint("Symmetric", 0, 2, 19, 2, -1, 1))
sketch9.addConstraint(Sketcher.Constraint("Symmetric", 1, 2, 20, 2, -1, 1))
sketch9.addConstraint(Sketcher.Constraint("Symmetric", 12, 2, 24, 2, -1, 1))
sketch9.addConstraint(Sketcher.Constraint("Symmetric", 9, 2, 29, 2, -1, 1))
sketch9.addConstraint(Sketcher.Constraint("Symmetric", 10, 2, 30, 2, -1, 1))
sketch9.addConstraint(Sketcher.Constraint("Symmetric", 11, 2, 31, 2, -1, 1))
sketch9.addConstraint(Sketcher.Constraint("Symmetric", 8, 3, 16, 3, -2))
sketch9.addConstraint(Sketcher.Constraint("Symmetric", 15, 3, 23, 3, -2))
sketch9.addConstraint(Sketcher.Constraint("Symmetric", 12, 2, 17, 2, -2))
sketch9.addConstraint(Sketcher.Constraint("Symmetric", 11, 2, 18, 2, -2))
sketch9.addConstraint(Sketcher.Constraint("Symmetric", 10, 2, 19, 2, -2))
sketch9.addConstraint(Sketcher.Constraint("Symmetric", 9, 2, 20, 2, -2))
sketch9.addConstraint(Sketcher.Constraint("PointOnObject", 33, 3, -2))
sketch9.addConstraint(Sketcher.Constraint("Perpendicular", 0, 1))
sketch9.addConstraint(Sketcher.Constraint("Parallel", 1, 7))
sketch9.addConstraint(Sketcher.Constraint("Perpendicular", 7, 10))
sketch9.addConstraint(Sketcher.Constraint("Parallel", 6, 17))
sketch9.addConstraint(Sketcher.Constraint("Parallel", 2, 21))
sketch9.addConstraint(Sketcher.Constraint("Parallel", 13, 25))
sketch9.addConstraint(Sketcher.Constraint("Parallel", 9, 29))
sketch9.addConstraint(Sketcher.Constraint("Horizontal", 13, 2, 16, 1))
sketch9.addConstraint(Sketcher.Constraint("Horizontal", 8, 1, 21, 2))
sketch9.addConstraint(Sketcher.Constraint("Diameter", 32, Q("0.96 in")))
sketch9.addConstraint(Sketcher.Constraint("DistanceY", -1, 1, 33, 3, Q("1.75 in")))
sketch9.addConstraint(Sketcher.Constraint("Distance", 0, Q("0.1875 in")))
sketch9.addConstraint(Sketcher.Constraint("Distance", 7, Q("0.875 in")))
sketch9.addConstraint(Sketcher.Constraint("Radius", 3, 6.383143))
sketch9.addConstraint(Sketcher.Constraint("Radius", 4, 2.193386))
sketch9.addConstraint(Sketcher.Constraint("DistanceX", 6, 2, 3, 1, 14.374))
sketch9.addConstraint(Sketcher.Constraint("DistanceX", 4, 3, -1, 1, 12.86561))
sketch9.addConstraint(Sketcher.Constraint("DistanceY", 4, 3, -1, 1, 15.288171))
sketch9.addConstraint(Sketcher.Constraint("DistanceX", 2, 2, -1, 1, 15.88758))
sketch9.addConstraint(Sketcher.Constraint("DistanceX", 3, 1, -1, 1, 15.036339))
sketch9.addConstraint(Sketcher.Constraint("DistanceX", 4, 1, -1, 1, 12.484619))
sketch9.addConstraint(Sketcher.Constraint("DistanceY", 6, 2, -1, 1, 36.145531))
sketch9.addConstraint(Sketcher.Constraint("DistanceX", 1, 2, 5, 3, 23.109529))
sketch9.addConstraint(Sketcher.Constraint("DistanceY", 5, 1, 3, 1, 6.33003))
pocket7 = body.newObject("PartDesign::Pocket", "Pocket006")
pocket7.Profile = sketch9
pocket7.Type = "ThroughAll"
pocket7.Reversed = True
doc.recompute()

fillet = body.newObject("PartDesign::Fillet", "Fillet")
fillet.Base = (pocket7, edges_at(pocket7, [
    (-16.112, -21.304, 1.524),
    (-16.112, 21.304, 1.524),
    (16.112, 21.304, 1.524),
    (16.112, -21.304, 1.524),
]))
fillet.Radius = Q("0.1 in")

# Sketch on XY plane
sketch10 = body.newObject("Sketcher::SketchObject", "Sketch009")
sketch10.AttachmentSupport = (doc.getObject("XY_Plane"), [""])
sketch10.MapMode = "FlatFace"
sketch10.addGeometry(Part.Circle(Vector(6.858, -39.116, 0), Vector(0, 0, 1), 1.143), False)
sketch10.addGeometry(Part.Circle(Vector(-6.858, -39.116, 0), Vector(0, 0, 1), 1.143), False)
sketch10.addConstraint(Sketcher.Constraint("Equal", 0, 1))
sketch10.addConstraint(Sketcher.Constraint("Symmetric", 0, 3, 1, 3, -2))
sketch10.addConstraint(Sketcher.Constraint("Diameter", 0, Q("0.09 in")))
sketch10.addConstraint(Sketcher.Constraint("DistanceX", -1, 1, 0, 3, Q("0.27 in")))
sketch10.addConstraint(Sketcher.Constraint("DistanceY", 0, 3, -1, 1, Q("1.54 in")))
pocket8 = body.newObject("PartDesign::Pocket", "Pocket007")
pocket8.Profile = sketch10
pocket8.Type = "ThroughAll"
pocket8.Reversed = True

doc.recompute()
